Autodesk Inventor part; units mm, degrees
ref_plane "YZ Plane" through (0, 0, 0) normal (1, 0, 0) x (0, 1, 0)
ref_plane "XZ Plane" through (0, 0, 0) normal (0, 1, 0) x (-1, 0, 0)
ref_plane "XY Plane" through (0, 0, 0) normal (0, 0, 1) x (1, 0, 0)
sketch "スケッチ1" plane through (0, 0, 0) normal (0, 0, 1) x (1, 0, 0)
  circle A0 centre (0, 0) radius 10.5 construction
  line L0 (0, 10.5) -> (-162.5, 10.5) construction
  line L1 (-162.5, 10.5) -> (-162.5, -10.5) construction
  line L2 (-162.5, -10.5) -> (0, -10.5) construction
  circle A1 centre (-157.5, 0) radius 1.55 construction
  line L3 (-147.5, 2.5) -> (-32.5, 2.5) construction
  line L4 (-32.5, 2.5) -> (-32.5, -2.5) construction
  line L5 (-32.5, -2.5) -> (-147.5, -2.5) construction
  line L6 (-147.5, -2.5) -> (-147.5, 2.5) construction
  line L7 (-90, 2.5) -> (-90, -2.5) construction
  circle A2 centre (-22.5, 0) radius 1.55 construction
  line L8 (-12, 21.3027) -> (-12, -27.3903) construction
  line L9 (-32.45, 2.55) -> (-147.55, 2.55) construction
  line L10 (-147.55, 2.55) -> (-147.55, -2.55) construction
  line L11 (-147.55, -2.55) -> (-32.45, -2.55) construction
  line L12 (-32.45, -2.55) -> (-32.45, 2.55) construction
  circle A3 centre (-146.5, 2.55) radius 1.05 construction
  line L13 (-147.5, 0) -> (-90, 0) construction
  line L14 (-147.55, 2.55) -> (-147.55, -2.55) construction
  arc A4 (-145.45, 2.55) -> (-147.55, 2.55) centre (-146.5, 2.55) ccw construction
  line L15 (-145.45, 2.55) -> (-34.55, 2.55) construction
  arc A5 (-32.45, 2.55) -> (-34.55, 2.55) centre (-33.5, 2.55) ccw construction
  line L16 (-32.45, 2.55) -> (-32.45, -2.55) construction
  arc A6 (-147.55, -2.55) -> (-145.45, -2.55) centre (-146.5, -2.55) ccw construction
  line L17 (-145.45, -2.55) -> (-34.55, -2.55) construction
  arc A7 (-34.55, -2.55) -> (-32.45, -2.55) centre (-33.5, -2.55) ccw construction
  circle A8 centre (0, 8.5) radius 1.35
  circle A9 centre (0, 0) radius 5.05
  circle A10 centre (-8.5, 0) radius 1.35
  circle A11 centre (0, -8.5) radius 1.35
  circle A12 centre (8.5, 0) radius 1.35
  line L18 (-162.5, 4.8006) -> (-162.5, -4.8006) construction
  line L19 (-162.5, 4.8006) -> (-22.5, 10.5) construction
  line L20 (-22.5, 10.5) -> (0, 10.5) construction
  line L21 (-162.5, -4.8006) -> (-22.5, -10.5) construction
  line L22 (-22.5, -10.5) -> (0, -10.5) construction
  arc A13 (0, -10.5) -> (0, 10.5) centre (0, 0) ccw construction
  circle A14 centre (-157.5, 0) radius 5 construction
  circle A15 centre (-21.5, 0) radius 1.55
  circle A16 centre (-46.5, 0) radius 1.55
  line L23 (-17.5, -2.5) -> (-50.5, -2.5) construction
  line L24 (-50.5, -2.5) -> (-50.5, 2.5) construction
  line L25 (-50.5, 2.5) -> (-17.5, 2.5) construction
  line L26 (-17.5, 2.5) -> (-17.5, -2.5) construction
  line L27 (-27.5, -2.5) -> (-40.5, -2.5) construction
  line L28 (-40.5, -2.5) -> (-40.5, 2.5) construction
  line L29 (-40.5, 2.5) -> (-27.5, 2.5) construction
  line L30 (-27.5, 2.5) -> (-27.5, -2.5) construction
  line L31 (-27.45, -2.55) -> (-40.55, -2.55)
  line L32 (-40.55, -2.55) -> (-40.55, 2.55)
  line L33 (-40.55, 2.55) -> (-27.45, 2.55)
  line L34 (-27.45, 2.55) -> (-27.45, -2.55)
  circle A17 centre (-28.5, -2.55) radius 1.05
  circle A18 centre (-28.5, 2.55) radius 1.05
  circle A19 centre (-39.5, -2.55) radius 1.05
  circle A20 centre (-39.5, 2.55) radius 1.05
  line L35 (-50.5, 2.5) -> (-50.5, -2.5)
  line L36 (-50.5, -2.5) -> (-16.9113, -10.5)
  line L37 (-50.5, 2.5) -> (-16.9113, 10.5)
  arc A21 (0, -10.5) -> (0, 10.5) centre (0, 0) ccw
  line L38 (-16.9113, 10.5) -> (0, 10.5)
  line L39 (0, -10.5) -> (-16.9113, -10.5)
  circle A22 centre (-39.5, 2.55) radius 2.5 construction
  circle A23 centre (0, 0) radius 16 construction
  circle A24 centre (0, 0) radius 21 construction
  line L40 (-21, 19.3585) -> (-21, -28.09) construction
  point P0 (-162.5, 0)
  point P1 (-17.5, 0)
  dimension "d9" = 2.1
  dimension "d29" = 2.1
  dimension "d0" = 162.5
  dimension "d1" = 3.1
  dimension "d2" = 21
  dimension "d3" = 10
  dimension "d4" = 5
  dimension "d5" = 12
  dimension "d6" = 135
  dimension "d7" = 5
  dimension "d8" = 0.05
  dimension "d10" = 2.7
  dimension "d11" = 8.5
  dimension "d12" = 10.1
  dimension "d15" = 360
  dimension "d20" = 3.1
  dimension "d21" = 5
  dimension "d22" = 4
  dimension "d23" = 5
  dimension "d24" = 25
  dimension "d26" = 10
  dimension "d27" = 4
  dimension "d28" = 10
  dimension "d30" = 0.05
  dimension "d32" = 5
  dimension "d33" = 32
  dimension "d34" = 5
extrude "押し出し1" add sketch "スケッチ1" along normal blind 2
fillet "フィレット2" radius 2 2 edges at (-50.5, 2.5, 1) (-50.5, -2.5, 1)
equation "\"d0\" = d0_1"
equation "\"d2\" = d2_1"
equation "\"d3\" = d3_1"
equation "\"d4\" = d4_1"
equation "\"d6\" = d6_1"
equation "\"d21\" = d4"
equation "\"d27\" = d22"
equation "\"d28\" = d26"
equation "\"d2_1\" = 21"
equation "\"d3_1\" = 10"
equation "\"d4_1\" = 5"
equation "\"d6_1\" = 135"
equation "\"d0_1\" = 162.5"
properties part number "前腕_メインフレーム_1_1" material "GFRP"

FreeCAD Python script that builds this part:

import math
import FreeCAD as App
import Part
import Sketcher


def edges_at(feature, points):
    """Names of the edges that pass closest to the given points."""
    edges = feature.Shape.Edges
    near = lambda p: min(range(len(edges)), key=lambda i: edges[i].distToShape(Part.Vertex(*p))[0])
    return sorted({f"Edge{near(p) + 1}" for p in points})

doc = App.newDocument("Part")
body = doc.addObject("PartDesign::Body", "Body")

sketch1 = body.newObject("Sketcher::SketchObject", "Sketch")
sketch1.AttachmentSupport = (doc.getObject("XY_Plane"), [""])
sketch1.MapMode = "FlatFace"
sketch1.addGeometry(Part.LineSegment(App.Vector(-16.9, 10.5, 0), App.Vector(-50.5, 2.5, 0)), False)
sketch1.addGeometry(Part.LineSegment(App.Vector(-50.5, 2.5, 0), App.Vector(-50.5, -2.5, 0)), False)
sketch1.addGeometry(Part.LineSegment(App.Vector(-50.5, -2.5, 0), App.Vector(-16.9, -10.5, 0)), False)
sketch1.addGeometry(Part.LineSegment(App.Vector(-16.9, -10.5, 0), App.Vector(0, -10.5, 0)), False)
sketch1.addGeometry(Part.ArcOfCircle(Part.Circle(App.Vector(0, 0, 0), App.Vector(0, 0, 1), 10.5), math.radians(-90), math.radians(90)), False)
sketch1.addGeometry(Part.LineSegment(App.Vector(0, 10.5, 0), App.Vector(-16.9, 10.5, 0)), False)
sketch1.addGeometry(Part.Circle(App.Vector(0, -8.5, 0), App.Vector(0, 0, 1), 1.4), False)
sketch1.addGeometry(Part.Circle(App.Vector(-46.5, 0, 0), App.Vector(0, 0, 1), 1.6), False)
sketch1.addGeometry(Part.LineSegment(App.Vector(-29.6, -2.5, 0), App.Vector(-38.5, -2.5, 0)), False)
sketch1.addGeometry(Part.ArcOfCircle(Part.Circle(App.Vector(-39.5, -2.5, 0), App.Vector(0, 0, 1), 1.1), math.radians(180), math.radians(360)), False)
sketch1.addGeometry(Part.LineSegment(App.Vector(-40.5, -2.5, 0), App.Vector(-40.5, 2.5, 0)), False)
sketch1.addGeometry(Part.ArcOfCircle(Part.Circle(App.Vector(-39.5, 2.5, 0), App.Vector(0, 0, 1), 1.1), math.radians(0), math.radians(180)), False)
sketch1.addGeometry(Part.LineSegment(App.Vector(-38.5, 2.5, 0), App.Vector(-29.6, 2.5, 0)), False)
sketch1.addGeometry(Part.ArcOfCircle(Part.Circle(App.Vector(-28.5, 2.5, 0), App.Vector(0, 0, 1), 1.1), math.radians(0), math.radians(180)), False)
sketch1.addGeometry(Part.LineSegment(App.Vector(-27.4, 2.5, 0), App.Vector(-27.4, -2.5, 0)), False)
sketch1.addGeometry(Part.ArcOfCircle(Part.Circle(App.Vector(-28.5, -2.5, 0), App.Vector(0, 0, 1), 1.1), math.radians(180), math.radians(360)), False)
sketch1.addGeometry(Part.Circle(App.Vector(-21.5, 0, 0), App.Vector(0, 0, 1), 1.6), False)
sketch1.addGeometry(Part.Circle(App.Vector(-8.5, 0, 0), App.Vector(0, 0, 1), 1.4), False)
sketch1.addGeometry(Part.Circle(App.Vector(0, 0, 0), App.Vector(0, 0, 1), 5), False)
sketch1.addGeometry(Part.Circle(App.Vector(8.5, 0, 0), App.Vector(0, 0, 1), 1.4), False)
sketch1.addGeometry(Part.Circle(App.Vector(0, 8.5, 0), App.Vector(0, 0, 1), 1.4), False)
sketch1.addConstraint(Sketcher.Constraint("Coincident", 0, 2, 1, 1))
sketch1.addConstraint(Sketcher.Constraint("Coincident", 1, 2, 2, 1))
sketch1.addConstraint(Sketcher.Constraint("Coincident", 2, 2, 3, 1))
sketch1.addConstraint(Sketcher.Constraint("Tangent", 3, 2, 4, 1))
sketch1.addConstraint(Sketcher.Constraint("Tangent", 4, 2, 5, 1))
sketch1.addConstraint(Sketcher.Constraint("Coincident", 5, 2, 0, 1))
sketch1.addConstraint(Sketcher.Constraint("Coincident", 8, 2, 9, 2))
sketch1.addConstraint(Sketcher.Constraint("Tangent", 9, 1, 10, 1))
sketch1.addConstraint(Sketcher.Constraint("Tangent", 10, 2, 11, 2))
sketch1.addConstraint(Sketcher.Constraint("Coincident", 11, 1, 12, 1))
sketch1.addConstraint(Sketcher.Constraint("Coincident", 12, 2, 13, 2))
sketch1.addConstraint(Sketcher.Constraint("Tangent", 13, 1, 14, 1))
sketch1.addConstraint(Sketcher.Constraint("Tangent", 14, 2, 15, 2))
sketch1.addConstraint(Sketcher.Constraint("Coincident", 15, 1, 8, 1))
sketch1.addConstraint(Sketcher.Constraint("Vertical", 1))
sketch1.addConstraint(Sketcher.Constraint("Horizontal", 3))
sketch1.addConstraint(Sketcher.Constraint("Horizontal", 5))
sketch1.addConstraint(Sketcher.Constraint("Horizontal", 8))
sketch1.addConstraint(Sketcher.Constraint("Vertical", 10))
sketch1.addConstraint(Sketcher.Constraint("Horizontal", 12))
sketch1.addConstraint(Sketcher.Constraint("Vertical", 14))
sketch1.addConstraint(Sketcher.Constraint("Coincident", 4, 3, -1, 1))
sketch1.addConstraint(Sketcher.Constraint("Coincident", 18, 3, -1, 1))
sketch1.addConstraint(Sketcher.Constraint("Equal", 9, 11))
sketch1.addConstraint(Sketcher.Constraint("Equal", 11, 13))
sketch1.addConstraint(Sketcher.Constraint("Equal", 13, 15))
sketch1.addConstraint(Sketcher.Constraint("Equal", 7, 16))
sketch1.addConstraint(Sketcher.Constraint("Equal", 6, 17))
sketch1.addConstraint(Sketcher.Constraint("Equal", 17, 19))
sketch1.addConstraint(Sketcher.Constraint("Equal", 19, 20))
sketch1.addConstraint(Sketcher.Constraint("Symmetric", 17, 3, 19, 3, -1, 1))
sketch1.addConstraint(Sketcher.Constraint("Symmetric", 6, 3, 20, 3, -1, 1))
sketch1.addConstraint(Sketcher.Constraint("PointOnObject", 6, 3, -2))
sketch1.addConstraint(Sketcher.Constraint("PointOnObject", 7, 3, -1))
sketch1.addConstraint(Sketcher.Constraint("PointOnObject", 16, 3, -1))
sketch1.addConstraint(Sketcher.Constraint("PointOnObject", 17, 3, -1))
sketch1.addConstraint(Sketcher.Constraint("Horizontal", 11, 3, 13, 3))
sketch1.addConstraint(Sketcher.Constraint("Horizontal", 9, 3, 15, 3))
sketch1.addConstraint(Sketcher.Constraint("Horizontal", 15, 3, 8, 2))
sketch1.addConstraint(Sketcher.Constraint("Horizontal", 10, 2, 11, 1))
sketch1.addConstraint(Sketcher.Constraint("Vertical", 2, 2, 5, 2))
sketch1.addConstraint(Sketcher.Constraint("Equal", 0, 2))
sketch1.addConstraint(Sketcher.Constraint("Diameter", 6, 2.7))
sketch1.addConstraint(Sketcher.Constraint("Diameter", 7, 3.1))
sketch1.addConstraint(Sketcher.Constraint("Diameter", 18, 10.1))
sketch1.addConstraint(Sketcher.Constraint("Radius", 4, 10.5))
sketch1.addConstraint(Sketcher.Constraint("DistanceY", 1, 2, 1, 1, 5.0))
sketch1.addConstraint(Sketcher.Constraint("Radius", 9, 1.05))
sketch1.addConstraint(Sketcher.Constraint("DistanceX", 0, 2, 7, 3, 4.0))
sketch1.addConstraint(Sketcher.Constraint("DistanceY", 6, 3, -1, 1, 8.5))
sketch1.addConstraint(Sketcher.Constraint("DistanceX", 17, 3, -1, 1, 8.5))
sketch1.addConstraint(Sketcher.Constraint("DistanceY", 0, 2, 11, 3, 0.05))
sketch1.addConstraint(Sketcher.Constraint("DistanceY", 9, 3, 1, 2, 0.05))
sketch1.addConstraint(Sketcher.Constraint("DistanceX", 8, 2, 8, 1, 8.9))
sketch1.addConstraint(Sketcher.Constraint("DistanceX", 7, 3, 9, 3, 7.0))
sketch1.addConstraint(Sketcher.Constraint("DistanceX", 13, 3, 16, 3, 7.0))
sketch1.addConstraint(Sketcher.Constraint("DistanceX", 16, 3, 17, 3, 13.0))
sketch1.addConstraint(Sketcher.Constraint("DistanceX", 3, 1, 3, 2, 16.9113))
pad1 = body.newObject("PartDesign::Pad", "Pad")
pad1.Profile = sketch1
pad1.Length = 2
doc.recompute()

fillet = body.newObject("PartDesign::Fillet", "Fillet")
fillet.Base = (pad1, edges_at(pad1, [(-50.5, 2.5, 1), (-50.5, -2.5, 1)]))
fillet.Radius = 2

doc.recompute()
